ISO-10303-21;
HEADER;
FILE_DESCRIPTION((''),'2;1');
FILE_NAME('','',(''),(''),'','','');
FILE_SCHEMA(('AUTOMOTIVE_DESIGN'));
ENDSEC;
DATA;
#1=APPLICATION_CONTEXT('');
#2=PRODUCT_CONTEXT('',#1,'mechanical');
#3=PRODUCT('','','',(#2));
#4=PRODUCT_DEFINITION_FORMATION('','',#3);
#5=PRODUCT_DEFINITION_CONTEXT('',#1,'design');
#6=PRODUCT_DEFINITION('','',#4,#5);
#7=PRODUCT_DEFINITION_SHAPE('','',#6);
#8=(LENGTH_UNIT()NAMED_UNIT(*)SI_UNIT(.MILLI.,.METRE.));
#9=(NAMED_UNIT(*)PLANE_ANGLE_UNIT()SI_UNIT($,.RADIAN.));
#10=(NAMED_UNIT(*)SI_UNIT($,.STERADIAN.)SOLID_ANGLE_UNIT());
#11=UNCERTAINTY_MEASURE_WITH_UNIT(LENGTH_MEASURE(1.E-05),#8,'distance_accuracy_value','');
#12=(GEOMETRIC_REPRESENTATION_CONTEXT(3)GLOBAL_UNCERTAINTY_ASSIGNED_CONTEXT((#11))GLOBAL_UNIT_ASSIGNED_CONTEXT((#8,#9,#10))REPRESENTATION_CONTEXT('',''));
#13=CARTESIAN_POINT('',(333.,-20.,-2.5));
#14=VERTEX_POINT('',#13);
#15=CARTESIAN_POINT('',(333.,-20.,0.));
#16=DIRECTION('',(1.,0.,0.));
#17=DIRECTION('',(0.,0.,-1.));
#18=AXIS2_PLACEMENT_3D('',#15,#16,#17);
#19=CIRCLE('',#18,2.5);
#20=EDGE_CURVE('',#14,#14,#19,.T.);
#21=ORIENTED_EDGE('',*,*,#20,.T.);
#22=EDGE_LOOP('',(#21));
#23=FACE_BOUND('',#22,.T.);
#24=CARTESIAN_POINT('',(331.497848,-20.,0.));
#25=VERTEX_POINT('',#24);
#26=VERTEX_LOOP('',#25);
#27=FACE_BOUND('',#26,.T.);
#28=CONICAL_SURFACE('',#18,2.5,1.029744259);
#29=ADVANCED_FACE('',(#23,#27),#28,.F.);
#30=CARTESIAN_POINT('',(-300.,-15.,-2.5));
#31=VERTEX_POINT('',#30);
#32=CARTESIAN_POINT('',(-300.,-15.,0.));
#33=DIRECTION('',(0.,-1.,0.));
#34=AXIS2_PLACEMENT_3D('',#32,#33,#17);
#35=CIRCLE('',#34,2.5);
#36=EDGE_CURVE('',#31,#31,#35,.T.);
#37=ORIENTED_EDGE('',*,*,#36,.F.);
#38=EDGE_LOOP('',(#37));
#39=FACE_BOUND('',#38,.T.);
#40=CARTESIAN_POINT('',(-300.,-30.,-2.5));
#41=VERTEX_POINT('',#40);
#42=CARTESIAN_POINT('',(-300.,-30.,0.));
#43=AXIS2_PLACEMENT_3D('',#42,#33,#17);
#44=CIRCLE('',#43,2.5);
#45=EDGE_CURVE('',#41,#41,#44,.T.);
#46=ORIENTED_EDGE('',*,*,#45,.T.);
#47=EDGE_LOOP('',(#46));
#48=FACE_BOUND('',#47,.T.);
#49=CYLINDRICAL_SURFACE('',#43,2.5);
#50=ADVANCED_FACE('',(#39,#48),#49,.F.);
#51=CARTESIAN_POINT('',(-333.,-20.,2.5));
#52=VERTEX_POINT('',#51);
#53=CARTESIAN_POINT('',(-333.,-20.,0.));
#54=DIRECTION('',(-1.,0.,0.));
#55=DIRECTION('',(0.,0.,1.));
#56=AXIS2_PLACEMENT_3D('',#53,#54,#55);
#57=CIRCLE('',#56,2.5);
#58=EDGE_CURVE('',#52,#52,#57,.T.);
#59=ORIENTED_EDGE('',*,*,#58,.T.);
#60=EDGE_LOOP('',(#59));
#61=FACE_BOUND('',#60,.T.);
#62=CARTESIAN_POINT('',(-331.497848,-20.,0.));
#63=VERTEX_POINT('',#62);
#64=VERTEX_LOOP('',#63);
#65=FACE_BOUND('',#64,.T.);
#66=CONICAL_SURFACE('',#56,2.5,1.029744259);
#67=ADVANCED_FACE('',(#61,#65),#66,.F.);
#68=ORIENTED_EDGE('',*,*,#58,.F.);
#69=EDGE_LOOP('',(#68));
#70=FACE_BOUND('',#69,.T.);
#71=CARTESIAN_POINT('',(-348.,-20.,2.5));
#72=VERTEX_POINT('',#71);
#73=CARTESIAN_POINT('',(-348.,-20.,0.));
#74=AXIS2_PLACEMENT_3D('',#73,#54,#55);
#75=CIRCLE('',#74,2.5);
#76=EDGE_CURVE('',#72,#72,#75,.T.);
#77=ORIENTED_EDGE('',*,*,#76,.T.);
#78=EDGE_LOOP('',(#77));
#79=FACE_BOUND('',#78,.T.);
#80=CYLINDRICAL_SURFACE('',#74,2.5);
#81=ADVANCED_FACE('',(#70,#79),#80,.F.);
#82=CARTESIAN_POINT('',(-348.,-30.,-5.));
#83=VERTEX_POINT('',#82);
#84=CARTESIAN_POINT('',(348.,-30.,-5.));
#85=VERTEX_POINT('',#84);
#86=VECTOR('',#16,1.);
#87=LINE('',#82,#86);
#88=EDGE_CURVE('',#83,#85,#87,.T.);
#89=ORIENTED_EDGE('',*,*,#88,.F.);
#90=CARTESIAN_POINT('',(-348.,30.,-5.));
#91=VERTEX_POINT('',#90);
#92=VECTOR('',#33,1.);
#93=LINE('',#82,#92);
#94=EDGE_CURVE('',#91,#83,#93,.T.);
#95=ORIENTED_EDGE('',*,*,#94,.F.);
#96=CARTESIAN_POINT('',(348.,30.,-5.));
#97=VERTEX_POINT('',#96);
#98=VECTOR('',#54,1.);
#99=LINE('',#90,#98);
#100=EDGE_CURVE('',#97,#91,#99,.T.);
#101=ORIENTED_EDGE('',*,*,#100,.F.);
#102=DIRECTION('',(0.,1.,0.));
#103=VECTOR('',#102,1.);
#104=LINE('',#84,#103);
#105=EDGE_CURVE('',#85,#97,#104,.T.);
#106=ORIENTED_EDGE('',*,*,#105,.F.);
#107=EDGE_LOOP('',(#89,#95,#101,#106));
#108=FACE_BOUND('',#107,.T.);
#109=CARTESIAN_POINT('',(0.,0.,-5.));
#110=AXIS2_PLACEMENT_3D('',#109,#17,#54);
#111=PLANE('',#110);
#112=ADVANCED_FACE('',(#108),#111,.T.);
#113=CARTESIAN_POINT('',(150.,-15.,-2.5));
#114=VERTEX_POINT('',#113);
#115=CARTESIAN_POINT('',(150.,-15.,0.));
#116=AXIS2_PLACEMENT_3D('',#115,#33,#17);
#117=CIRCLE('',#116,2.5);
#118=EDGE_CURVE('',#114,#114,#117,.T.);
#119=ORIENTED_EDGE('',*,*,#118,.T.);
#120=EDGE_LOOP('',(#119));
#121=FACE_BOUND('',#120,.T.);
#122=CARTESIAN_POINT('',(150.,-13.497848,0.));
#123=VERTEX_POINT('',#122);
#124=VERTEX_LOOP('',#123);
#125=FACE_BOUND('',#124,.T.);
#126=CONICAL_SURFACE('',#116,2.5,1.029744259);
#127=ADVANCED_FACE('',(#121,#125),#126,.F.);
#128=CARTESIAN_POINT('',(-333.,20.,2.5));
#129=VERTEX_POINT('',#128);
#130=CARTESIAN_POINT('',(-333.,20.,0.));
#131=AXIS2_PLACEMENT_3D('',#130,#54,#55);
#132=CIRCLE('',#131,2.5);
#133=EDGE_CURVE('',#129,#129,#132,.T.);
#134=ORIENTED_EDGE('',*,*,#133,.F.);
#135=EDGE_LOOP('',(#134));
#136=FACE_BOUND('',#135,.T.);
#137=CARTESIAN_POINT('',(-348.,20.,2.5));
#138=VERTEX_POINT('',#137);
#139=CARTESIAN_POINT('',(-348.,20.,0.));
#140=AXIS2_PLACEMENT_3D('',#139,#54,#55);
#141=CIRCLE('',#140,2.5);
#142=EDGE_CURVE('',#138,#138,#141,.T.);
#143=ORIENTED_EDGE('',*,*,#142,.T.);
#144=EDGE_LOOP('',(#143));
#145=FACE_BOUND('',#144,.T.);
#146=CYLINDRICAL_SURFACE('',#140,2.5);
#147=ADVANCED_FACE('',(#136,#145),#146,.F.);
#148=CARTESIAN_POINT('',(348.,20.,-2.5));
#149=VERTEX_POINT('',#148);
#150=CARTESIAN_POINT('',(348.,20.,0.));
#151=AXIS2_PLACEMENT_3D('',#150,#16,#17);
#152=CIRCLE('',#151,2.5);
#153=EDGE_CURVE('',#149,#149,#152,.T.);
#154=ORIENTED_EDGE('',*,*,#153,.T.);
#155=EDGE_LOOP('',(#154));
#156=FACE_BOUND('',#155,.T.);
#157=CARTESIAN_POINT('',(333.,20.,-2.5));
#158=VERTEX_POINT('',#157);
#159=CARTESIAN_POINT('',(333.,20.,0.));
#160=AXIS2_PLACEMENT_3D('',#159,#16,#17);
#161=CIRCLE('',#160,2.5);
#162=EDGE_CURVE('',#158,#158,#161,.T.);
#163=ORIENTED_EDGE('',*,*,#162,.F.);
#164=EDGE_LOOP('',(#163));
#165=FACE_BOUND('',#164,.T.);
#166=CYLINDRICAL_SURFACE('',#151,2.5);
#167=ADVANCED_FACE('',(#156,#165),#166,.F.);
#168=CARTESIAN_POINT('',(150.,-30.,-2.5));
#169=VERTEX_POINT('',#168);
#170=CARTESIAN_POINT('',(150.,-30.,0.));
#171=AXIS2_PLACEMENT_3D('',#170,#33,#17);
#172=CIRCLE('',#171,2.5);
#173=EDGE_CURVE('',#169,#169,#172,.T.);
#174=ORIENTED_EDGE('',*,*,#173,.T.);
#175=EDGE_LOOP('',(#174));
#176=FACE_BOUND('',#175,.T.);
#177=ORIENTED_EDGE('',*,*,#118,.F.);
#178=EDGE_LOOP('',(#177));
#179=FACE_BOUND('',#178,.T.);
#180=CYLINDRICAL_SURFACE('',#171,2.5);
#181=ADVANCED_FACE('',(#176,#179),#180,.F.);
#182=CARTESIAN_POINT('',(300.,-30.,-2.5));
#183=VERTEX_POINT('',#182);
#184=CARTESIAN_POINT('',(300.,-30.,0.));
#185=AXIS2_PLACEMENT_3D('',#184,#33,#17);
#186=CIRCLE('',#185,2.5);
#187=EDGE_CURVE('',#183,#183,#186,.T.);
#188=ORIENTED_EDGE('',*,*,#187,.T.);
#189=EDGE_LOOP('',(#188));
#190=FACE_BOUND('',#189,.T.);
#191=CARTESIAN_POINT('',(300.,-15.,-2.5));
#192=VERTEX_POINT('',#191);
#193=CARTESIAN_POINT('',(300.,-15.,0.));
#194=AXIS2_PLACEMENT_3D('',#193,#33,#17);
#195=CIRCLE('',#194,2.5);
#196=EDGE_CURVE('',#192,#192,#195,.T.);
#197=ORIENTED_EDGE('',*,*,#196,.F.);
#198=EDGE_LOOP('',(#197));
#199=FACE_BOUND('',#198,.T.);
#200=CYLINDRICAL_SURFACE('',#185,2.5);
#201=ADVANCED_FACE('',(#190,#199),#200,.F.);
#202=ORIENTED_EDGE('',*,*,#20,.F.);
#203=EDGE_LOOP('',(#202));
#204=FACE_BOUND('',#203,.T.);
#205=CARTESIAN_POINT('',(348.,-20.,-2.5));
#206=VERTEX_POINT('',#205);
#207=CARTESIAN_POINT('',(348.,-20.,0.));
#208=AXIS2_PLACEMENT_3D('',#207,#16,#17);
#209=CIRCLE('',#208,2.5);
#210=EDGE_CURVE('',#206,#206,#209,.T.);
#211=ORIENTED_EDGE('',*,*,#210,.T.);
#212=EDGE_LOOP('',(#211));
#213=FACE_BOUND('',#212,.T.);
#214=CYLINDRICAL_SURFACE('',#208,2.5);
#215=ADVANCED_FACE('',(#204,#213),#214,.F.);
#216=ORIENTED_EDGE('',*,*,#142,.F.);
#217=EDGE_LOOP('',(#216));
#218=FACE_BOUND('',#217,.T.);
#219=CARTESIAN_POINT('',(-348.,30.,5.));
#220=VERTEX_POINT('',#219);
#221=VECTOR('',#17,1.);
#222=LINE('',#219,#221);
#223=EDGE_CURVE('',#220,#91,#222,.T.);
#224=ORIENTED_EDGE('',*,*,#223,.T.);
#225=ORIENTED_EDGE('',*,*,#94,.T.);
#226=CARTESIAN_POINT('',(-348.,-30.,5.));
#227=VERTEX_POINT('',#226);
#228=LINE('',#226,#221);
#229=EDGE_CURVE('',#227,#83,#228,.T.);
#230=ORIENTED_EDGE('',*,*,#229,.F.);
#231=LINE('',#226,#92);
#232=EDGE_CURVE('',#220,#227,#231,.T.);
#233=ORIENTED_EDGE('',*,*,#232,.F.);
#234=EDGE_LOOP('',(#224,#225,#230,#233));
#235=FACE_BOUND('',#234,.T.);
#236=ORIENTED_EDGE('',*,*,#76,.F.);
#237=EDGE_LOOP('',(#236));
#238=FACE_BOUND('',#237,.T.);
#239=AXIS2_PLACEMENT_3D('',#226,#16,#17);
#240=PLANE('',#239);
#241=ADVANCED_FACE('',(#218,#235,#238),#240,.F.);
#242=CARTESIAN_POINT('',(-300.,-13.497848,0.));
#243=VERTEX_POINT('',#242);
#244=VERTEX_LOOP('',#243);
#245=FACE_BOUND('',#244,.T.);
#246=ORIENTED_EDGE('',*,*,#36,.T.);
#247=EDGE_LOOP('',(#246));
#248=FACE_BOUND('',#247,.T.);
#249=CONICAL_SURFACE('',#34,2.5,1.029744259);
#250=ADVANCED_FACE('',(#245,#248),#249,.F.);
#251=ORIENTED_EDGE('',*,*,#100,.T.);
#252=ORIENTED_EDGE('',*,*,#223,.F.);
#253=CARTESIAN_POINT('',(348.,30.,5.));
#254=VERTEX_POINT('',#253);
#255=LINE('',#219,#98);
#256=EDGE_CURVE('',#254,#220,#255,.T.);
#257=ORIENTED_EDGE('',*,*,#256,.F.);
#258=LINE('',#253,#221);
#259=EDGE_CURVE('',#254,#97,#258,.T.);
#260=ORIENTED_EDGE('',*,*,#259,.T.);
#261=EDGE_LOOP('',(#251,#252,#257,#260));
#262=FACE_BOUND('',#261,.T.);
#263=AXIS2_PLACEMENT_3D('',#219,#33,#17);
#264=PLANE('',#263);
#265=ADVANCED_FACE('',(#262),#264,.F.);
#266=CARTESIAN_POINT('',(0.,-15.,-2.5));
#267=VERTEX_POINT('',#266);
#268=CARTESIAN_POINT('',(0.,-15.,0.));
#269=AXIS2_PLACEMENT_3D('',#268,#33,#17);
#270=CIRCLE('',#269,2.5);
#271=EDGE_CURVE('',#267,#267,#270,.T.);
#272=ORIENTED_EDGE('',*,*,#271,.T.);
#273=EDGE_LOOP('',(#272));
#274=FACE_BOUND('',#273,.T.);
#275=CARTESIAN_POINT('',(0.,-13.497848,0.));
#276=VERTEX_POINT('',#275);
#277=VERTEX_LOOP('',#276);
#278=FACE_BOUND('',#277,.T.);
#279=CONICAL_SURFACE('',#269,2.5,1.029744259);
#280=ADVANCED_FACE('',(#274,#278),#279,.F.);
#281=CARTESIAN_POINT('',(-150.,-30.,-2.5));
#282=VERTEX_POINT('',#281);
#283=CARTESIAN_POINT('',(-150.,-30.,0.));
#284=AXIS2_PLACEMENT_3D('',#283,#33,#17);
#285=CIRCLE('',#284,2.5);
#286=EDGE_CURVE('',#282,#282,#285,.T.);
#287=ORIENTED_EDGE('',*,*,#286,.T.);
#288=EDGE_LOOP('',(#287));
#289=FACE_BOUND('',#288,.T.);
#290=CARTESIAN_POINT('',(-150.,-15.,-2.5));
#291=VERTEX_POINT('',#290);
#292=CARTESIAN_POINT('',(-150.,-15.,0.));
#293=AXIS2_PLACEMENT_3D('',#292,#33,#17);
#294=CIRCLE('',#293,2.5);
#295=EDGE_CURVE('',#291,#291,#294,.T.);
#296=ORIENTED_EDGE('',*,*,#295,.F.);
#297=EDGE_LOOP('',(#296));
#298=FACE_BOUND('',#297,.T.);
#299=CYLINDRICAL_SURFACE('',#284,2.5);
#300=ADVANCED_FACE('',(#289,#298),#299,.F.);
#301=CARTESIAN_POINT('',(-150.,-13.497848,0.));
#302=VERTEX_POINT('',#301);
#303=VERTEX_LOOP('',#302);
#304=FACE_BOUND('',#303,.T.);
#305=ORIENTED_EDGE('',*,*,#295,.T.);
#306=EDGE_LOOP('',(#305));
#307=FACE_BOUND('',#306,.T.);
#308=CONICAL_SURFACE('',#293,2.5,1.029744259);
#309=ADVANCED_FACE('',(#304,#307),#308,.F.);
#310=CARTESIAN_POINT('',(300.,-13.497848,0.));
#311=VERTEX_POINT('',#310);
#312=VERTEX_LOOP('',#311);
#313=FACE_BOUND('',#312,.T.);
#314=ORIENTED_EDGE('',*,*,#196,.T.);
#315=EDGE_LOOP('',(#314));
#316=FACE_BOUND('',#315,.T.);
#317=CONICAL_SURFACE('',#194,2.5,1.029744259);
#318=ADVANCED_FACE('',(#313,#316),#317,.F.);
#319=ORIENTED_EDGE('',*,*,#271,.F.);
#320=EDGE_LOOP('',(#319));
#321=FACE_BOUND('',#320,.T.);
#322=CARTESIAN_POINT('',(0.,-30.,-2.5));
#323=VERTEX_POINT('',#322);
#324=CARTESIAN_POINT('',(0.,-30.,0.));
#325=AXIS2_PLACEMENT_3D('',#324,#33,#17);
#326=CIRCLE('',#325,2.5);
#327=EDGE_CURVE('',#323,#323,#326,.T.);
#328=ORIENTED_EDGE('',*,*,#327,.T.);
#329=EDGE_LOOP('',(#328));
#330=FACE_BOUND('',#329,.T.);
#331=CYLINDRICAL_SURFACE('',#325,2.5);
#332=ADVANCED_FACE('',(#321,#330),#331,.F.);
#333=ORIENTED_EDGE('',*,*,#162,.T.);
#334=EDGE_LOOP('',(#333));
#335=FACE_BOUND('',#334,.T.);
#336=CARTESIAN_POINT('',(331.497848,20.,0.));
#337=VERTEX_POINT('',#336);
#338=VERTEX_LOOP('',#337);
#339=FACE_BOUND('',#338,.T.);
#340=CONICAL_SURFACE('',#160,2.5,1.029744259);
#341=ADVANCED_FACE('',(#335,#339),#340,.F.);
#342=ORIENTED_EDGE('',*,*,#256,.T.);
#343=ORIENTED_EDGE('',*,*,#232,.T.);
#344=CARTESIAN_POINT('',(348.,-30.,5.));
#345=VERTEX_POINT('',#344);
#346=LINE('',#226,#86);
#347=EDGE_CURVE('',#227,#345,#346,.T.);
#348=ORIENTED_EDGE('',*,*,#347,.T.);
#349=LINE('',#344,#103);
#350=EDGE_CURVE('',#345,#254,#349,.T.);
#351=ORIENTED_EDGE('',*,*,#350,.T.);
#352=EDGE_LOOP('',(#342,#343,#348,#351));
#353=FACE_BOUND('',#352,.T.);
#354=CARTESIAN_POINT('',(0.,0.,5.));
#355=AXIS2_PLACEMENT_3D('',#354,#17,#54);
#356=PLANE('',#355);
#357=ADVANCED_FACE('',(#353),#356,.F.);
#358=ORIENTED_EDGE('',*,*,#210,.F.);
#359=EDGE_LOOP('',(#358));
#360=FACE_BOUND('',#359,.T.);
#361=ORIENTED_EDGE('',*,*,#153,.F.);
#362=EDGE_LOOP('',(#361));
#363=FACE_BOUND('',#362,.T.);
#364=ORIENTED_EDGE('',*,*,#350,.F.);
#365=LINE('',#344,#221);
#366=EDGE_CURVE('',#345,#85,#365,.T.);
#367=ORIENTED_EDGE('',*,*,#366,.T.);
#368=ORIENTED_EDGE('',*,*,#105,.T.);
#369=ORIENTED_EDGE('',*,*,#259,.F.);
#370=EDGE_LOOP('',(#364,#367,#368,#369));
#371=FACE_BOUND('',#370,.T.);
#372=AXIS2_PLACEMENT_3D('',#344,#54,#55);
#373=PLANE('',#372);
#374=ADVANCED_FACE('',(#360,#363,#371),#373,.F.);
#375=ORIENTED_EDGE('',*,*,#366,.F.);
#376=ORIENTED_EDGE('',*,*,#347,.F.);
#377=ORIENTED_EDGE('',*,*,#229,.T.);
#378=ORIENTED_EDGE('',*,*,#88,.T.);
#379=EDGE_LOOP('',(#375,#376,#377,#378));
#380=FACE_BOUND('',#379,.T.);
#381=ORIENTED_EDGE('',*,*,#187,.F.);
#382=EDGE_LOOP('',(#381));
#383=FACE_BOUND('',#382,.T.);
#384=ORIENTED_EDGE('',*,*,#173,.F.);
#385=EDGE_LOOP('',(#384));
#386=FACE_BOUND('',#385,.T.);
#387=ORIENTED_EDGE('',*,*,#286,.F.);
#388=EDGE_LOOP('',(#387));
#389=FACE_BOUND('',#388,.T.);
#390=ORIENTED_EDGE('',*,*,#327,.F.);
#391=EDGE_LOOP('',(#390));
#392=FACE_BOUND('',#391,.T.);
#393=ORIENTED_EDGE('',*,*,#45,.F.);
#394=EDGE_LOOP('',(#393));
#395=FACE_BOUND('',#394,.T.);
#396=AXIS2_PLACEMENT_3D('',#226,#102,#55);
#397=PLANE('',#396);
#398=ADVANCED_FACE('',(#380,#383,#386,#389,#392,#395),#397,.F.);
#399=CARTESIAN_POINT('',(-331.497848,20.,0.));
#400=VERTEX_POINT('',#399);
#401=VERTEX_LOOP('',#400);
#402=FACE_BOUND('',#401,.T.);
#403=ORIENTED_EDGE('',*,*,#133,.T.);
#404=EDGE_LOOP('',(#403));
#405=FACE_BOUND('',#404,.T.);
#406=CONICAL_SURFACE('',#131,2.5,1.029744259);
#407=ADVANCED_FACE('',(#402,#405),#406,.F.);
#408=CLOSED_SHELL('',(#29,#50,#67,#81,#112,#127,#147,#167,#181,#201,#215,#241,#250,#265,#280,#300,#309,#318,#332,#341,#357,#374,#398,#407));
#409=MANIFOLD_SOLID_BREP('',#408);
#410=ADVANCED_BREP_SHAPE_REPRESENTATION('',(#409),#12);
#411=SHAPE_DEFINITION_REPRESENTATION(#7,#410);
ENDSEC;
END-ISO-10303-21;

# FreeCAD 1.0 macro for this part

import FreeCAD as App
import Part
import Sketcher

V = App.Vector
Q = App.Units.Quantity


def add_polygon(sketch, points):
    """Adds a closed chain of lines whose ends are joined by coincident constraints."""
    first, n = sketch.GeometryCount, len(points)
    for a, b in zip(points, points[1:] + points[:1]):
        sketch.addGeometry(Part.LineSegment(App.Vector(*a, 0), App.Vector(*b, 0)), False)
    for i in range(n):
        sketch.addConstraint(Sketcher.Constraint("Coincident", first + i, 2, first + (i + 1) % n, 1))

doc = App.newDocument("Part")
body = doc.addObject("PartDesign::Body", "Body")

sketch1 = body.newObject("Sketcher::SketchObject", "Sketch")
sketch1.AttachmentSupport = (doc.getObject("XY_Plane"), [""])
sketch1.MapMode = "FlatFace"
add_polygon(sketch1, [(-348, 30), (-348, -30), (348, -30), (348, 30)])
sketch1.addConstraint([
    Sketcher.Constraint("Vertical", 0),
    Sketcher.Constraint("Horizontal", 1),
    Sketcher.Constraint("Vertical", 2),
    Sketcher.Constraint("Horizontal", 3),
    Sketcher.Constraint("Symmetric", 0, 2, 2, 2, -1, 1),
    Sketcher.Constraint("DistanceX", 1, 1, 1, 2, Q("696 mm")),
    Sketcher.Constraint("DistanceY", 0, 2, 0, 1, Q("60 mm")),
])
pad1 = body.newObject("PartDesign::Pad", "Pad")
pad1.Profile = sketch1
pad1.Length = 10
pad1.Midplane = True

sketch2 = body.newObject("Sketcher::SketchObject", "Sketch001")
sketch2.AttachmentSupport = (doc.getObject("XZ_Plane"), [""])
sketch2.MapMode = "FlatFace"
sketch2.AttachmentOffset = App.Placement(V(0, 0, -20), App.Rotation())
add_polygon(sketch2, [(331.5, 0), (348, 0), (348, -2.5), (333, -2.5)])
sketch2.addConstraint([
    Sketcher.Constraint("Horizontal", 0),
    Sketcher.Constraint("Vertical", 1),
    Sketcher.Constraint("Horizontal", 2),
    Sketcher.Constraint("PointOnObject", 0, 2, -1),
    Sketcher.Constraint("DistanceX", 2, 2, 2, 1, Q("15 mm")),
    Sketcher.Constraint("Angle", 3, Q("121 deg")),
    Sketcher.Constraint("DistanceY", 1, 2, 1, 1, Q("2.5 mm")),
    Sketcher.Constraint("DistanceX", -1, 1, 0, 2, Q("348 mm")),
])
groove = body.newObject("PartDesign::Groove", "Groove")
groove.Profile = sketch2
groove.ReferenceAxis = (sketch2, ["H_Axis"])
groove.Angle = 360
doc.recompute()

linearpattern = body.newObject("PartDesign::LinearPattern", "LinearPattern")
linearpattern.Originals = [groove]
linearpattern.Direction = (doc.getObject("Y_Axis"), [""])
linearpattern.Mode = "offset"
linearpattern.Offset = 40
linearpattern.Occurrences = 2
linearpattern.Reversed = True
body.Tip = linearpattern
doc.recompute()

mirrored = body.newObject("PartDesign::Mirrored", "Mirrored")
mirrored.Originals = [groove]
mirrored.MirrorPlane = (doc.getObject("YZ_Plane"), [""])
body.Tip = mirrored

sketch3 = body.newObject("Sketcher::SketchObject", "Sketch002")
sketch3.AttachmentSupport = (doc.getObject("XZ_Plane"), [""])
sketch3.MapMode = "FlatFace"
sketch3.AttachmentOffset = App.Placement(V(0, 0, 20), App.Rotation())
add_polygon(sketch3, [(-348, 0), (-331.5, 0), (-333, -2.5), (-348, -2.5)])
sketch3.addConstraint([
    Sketcher.Constraint("Horizontal", 0),
    Sketcher.Constraint("Horizontal", 2),
    Sketcher.Constraint("Vertical", 3),
    Sketcher.Constraint("PointOnObject", 0, 2, -1),
    Sketcher.Constraint("DistanceX", 2, 2, 2, 1, Q("15 mm")),
    Sketcher.Constraint("Angle", 1, Q("-121 deg")),
    Sketcher.Constraint("DistanceY", 3, 1, 3, 2, Q("2.5 mm")),
    Sketcher.Constraint("DistanceX", 1, 2, -1, 1, Q("333 mm")),
])
groove2 = body.newObject("PartDesign::Groove", "Groove001")
groove2.Profile = sketch3
groove2.ReferenceAxis = (sketch3, ["H_Axis"])
groove2.Angle = 360

sketch4 = body.newObject("Sketcher::SketchObject", "Sketch003")
sketch4.AttachmentSupport = (doc.getObject("XZ_Plane"), [""])
sketch4.MapMode = "FlatFace"
sketch4.AttachmentOffset = App.Placement(V(0, 0, 30), App.Rotation())
sketch4.addGeometry([
    Part.Circle(V(-300, 0, 0), V(0, 0, 1), 2.5),
    Part.Circle(V(-150, 0, 0), V(0, 0, 1), 2.5),
    Part.Circle(V(150, 0, 0), V(0, 0, 1), 2.5),
    Part.Circle(V(300, 0, 0), V(0, 0, 1), 2.5),
    Part.Circle(V(0, 0, 0), V(0, 0, 1), 2.5),
], False)
sketch4.addConstraint([
    Sketcher.Constraint("Coincident", 4, 3, -1, 1),
    Sketcher.Constraint("Equal", 0, 1),
    Sketcher.Constraint("Equal", 1, 2),
    Sketcher.Constraint("Equal", 2, 3),
    Sketcher.Constraint("Equal", 3, 4),
    Sketcher.Constraint("Symmetric", 1, 3, 2, 3, -1, 1),
    Sketcher.Constraint("Symmetric", 0, 3, 3, 3, -1, 1),
    Sketcher.Constraint("PointOnObject", 0, 3, -1),
    Sketcher.Constraint("PointOnObject", 1, 3, -1),
    Sketcher.Constraint("Diameter", 0, Q("5 mm")),
    Sketcher.Constraint("DistanceX", 0, 3, -1, 1, Q("300 mm")),
    Sketcher.Constraint("DistanceX", 1, 3, -1, 1, Q("150 mm")),
])
doc.recompute()
hole = body.newObject("PartDesign::Hole", "Hole")
hole.Profile = sketch4
hole.ThreadType = "None"
hole.Diameter = 5
hole.DepthType = "Dimension"
hole.Depth = 15
hole.DrillPoint = "Angled"
hole.DrillPointAngle = 118

doc.recompute()
